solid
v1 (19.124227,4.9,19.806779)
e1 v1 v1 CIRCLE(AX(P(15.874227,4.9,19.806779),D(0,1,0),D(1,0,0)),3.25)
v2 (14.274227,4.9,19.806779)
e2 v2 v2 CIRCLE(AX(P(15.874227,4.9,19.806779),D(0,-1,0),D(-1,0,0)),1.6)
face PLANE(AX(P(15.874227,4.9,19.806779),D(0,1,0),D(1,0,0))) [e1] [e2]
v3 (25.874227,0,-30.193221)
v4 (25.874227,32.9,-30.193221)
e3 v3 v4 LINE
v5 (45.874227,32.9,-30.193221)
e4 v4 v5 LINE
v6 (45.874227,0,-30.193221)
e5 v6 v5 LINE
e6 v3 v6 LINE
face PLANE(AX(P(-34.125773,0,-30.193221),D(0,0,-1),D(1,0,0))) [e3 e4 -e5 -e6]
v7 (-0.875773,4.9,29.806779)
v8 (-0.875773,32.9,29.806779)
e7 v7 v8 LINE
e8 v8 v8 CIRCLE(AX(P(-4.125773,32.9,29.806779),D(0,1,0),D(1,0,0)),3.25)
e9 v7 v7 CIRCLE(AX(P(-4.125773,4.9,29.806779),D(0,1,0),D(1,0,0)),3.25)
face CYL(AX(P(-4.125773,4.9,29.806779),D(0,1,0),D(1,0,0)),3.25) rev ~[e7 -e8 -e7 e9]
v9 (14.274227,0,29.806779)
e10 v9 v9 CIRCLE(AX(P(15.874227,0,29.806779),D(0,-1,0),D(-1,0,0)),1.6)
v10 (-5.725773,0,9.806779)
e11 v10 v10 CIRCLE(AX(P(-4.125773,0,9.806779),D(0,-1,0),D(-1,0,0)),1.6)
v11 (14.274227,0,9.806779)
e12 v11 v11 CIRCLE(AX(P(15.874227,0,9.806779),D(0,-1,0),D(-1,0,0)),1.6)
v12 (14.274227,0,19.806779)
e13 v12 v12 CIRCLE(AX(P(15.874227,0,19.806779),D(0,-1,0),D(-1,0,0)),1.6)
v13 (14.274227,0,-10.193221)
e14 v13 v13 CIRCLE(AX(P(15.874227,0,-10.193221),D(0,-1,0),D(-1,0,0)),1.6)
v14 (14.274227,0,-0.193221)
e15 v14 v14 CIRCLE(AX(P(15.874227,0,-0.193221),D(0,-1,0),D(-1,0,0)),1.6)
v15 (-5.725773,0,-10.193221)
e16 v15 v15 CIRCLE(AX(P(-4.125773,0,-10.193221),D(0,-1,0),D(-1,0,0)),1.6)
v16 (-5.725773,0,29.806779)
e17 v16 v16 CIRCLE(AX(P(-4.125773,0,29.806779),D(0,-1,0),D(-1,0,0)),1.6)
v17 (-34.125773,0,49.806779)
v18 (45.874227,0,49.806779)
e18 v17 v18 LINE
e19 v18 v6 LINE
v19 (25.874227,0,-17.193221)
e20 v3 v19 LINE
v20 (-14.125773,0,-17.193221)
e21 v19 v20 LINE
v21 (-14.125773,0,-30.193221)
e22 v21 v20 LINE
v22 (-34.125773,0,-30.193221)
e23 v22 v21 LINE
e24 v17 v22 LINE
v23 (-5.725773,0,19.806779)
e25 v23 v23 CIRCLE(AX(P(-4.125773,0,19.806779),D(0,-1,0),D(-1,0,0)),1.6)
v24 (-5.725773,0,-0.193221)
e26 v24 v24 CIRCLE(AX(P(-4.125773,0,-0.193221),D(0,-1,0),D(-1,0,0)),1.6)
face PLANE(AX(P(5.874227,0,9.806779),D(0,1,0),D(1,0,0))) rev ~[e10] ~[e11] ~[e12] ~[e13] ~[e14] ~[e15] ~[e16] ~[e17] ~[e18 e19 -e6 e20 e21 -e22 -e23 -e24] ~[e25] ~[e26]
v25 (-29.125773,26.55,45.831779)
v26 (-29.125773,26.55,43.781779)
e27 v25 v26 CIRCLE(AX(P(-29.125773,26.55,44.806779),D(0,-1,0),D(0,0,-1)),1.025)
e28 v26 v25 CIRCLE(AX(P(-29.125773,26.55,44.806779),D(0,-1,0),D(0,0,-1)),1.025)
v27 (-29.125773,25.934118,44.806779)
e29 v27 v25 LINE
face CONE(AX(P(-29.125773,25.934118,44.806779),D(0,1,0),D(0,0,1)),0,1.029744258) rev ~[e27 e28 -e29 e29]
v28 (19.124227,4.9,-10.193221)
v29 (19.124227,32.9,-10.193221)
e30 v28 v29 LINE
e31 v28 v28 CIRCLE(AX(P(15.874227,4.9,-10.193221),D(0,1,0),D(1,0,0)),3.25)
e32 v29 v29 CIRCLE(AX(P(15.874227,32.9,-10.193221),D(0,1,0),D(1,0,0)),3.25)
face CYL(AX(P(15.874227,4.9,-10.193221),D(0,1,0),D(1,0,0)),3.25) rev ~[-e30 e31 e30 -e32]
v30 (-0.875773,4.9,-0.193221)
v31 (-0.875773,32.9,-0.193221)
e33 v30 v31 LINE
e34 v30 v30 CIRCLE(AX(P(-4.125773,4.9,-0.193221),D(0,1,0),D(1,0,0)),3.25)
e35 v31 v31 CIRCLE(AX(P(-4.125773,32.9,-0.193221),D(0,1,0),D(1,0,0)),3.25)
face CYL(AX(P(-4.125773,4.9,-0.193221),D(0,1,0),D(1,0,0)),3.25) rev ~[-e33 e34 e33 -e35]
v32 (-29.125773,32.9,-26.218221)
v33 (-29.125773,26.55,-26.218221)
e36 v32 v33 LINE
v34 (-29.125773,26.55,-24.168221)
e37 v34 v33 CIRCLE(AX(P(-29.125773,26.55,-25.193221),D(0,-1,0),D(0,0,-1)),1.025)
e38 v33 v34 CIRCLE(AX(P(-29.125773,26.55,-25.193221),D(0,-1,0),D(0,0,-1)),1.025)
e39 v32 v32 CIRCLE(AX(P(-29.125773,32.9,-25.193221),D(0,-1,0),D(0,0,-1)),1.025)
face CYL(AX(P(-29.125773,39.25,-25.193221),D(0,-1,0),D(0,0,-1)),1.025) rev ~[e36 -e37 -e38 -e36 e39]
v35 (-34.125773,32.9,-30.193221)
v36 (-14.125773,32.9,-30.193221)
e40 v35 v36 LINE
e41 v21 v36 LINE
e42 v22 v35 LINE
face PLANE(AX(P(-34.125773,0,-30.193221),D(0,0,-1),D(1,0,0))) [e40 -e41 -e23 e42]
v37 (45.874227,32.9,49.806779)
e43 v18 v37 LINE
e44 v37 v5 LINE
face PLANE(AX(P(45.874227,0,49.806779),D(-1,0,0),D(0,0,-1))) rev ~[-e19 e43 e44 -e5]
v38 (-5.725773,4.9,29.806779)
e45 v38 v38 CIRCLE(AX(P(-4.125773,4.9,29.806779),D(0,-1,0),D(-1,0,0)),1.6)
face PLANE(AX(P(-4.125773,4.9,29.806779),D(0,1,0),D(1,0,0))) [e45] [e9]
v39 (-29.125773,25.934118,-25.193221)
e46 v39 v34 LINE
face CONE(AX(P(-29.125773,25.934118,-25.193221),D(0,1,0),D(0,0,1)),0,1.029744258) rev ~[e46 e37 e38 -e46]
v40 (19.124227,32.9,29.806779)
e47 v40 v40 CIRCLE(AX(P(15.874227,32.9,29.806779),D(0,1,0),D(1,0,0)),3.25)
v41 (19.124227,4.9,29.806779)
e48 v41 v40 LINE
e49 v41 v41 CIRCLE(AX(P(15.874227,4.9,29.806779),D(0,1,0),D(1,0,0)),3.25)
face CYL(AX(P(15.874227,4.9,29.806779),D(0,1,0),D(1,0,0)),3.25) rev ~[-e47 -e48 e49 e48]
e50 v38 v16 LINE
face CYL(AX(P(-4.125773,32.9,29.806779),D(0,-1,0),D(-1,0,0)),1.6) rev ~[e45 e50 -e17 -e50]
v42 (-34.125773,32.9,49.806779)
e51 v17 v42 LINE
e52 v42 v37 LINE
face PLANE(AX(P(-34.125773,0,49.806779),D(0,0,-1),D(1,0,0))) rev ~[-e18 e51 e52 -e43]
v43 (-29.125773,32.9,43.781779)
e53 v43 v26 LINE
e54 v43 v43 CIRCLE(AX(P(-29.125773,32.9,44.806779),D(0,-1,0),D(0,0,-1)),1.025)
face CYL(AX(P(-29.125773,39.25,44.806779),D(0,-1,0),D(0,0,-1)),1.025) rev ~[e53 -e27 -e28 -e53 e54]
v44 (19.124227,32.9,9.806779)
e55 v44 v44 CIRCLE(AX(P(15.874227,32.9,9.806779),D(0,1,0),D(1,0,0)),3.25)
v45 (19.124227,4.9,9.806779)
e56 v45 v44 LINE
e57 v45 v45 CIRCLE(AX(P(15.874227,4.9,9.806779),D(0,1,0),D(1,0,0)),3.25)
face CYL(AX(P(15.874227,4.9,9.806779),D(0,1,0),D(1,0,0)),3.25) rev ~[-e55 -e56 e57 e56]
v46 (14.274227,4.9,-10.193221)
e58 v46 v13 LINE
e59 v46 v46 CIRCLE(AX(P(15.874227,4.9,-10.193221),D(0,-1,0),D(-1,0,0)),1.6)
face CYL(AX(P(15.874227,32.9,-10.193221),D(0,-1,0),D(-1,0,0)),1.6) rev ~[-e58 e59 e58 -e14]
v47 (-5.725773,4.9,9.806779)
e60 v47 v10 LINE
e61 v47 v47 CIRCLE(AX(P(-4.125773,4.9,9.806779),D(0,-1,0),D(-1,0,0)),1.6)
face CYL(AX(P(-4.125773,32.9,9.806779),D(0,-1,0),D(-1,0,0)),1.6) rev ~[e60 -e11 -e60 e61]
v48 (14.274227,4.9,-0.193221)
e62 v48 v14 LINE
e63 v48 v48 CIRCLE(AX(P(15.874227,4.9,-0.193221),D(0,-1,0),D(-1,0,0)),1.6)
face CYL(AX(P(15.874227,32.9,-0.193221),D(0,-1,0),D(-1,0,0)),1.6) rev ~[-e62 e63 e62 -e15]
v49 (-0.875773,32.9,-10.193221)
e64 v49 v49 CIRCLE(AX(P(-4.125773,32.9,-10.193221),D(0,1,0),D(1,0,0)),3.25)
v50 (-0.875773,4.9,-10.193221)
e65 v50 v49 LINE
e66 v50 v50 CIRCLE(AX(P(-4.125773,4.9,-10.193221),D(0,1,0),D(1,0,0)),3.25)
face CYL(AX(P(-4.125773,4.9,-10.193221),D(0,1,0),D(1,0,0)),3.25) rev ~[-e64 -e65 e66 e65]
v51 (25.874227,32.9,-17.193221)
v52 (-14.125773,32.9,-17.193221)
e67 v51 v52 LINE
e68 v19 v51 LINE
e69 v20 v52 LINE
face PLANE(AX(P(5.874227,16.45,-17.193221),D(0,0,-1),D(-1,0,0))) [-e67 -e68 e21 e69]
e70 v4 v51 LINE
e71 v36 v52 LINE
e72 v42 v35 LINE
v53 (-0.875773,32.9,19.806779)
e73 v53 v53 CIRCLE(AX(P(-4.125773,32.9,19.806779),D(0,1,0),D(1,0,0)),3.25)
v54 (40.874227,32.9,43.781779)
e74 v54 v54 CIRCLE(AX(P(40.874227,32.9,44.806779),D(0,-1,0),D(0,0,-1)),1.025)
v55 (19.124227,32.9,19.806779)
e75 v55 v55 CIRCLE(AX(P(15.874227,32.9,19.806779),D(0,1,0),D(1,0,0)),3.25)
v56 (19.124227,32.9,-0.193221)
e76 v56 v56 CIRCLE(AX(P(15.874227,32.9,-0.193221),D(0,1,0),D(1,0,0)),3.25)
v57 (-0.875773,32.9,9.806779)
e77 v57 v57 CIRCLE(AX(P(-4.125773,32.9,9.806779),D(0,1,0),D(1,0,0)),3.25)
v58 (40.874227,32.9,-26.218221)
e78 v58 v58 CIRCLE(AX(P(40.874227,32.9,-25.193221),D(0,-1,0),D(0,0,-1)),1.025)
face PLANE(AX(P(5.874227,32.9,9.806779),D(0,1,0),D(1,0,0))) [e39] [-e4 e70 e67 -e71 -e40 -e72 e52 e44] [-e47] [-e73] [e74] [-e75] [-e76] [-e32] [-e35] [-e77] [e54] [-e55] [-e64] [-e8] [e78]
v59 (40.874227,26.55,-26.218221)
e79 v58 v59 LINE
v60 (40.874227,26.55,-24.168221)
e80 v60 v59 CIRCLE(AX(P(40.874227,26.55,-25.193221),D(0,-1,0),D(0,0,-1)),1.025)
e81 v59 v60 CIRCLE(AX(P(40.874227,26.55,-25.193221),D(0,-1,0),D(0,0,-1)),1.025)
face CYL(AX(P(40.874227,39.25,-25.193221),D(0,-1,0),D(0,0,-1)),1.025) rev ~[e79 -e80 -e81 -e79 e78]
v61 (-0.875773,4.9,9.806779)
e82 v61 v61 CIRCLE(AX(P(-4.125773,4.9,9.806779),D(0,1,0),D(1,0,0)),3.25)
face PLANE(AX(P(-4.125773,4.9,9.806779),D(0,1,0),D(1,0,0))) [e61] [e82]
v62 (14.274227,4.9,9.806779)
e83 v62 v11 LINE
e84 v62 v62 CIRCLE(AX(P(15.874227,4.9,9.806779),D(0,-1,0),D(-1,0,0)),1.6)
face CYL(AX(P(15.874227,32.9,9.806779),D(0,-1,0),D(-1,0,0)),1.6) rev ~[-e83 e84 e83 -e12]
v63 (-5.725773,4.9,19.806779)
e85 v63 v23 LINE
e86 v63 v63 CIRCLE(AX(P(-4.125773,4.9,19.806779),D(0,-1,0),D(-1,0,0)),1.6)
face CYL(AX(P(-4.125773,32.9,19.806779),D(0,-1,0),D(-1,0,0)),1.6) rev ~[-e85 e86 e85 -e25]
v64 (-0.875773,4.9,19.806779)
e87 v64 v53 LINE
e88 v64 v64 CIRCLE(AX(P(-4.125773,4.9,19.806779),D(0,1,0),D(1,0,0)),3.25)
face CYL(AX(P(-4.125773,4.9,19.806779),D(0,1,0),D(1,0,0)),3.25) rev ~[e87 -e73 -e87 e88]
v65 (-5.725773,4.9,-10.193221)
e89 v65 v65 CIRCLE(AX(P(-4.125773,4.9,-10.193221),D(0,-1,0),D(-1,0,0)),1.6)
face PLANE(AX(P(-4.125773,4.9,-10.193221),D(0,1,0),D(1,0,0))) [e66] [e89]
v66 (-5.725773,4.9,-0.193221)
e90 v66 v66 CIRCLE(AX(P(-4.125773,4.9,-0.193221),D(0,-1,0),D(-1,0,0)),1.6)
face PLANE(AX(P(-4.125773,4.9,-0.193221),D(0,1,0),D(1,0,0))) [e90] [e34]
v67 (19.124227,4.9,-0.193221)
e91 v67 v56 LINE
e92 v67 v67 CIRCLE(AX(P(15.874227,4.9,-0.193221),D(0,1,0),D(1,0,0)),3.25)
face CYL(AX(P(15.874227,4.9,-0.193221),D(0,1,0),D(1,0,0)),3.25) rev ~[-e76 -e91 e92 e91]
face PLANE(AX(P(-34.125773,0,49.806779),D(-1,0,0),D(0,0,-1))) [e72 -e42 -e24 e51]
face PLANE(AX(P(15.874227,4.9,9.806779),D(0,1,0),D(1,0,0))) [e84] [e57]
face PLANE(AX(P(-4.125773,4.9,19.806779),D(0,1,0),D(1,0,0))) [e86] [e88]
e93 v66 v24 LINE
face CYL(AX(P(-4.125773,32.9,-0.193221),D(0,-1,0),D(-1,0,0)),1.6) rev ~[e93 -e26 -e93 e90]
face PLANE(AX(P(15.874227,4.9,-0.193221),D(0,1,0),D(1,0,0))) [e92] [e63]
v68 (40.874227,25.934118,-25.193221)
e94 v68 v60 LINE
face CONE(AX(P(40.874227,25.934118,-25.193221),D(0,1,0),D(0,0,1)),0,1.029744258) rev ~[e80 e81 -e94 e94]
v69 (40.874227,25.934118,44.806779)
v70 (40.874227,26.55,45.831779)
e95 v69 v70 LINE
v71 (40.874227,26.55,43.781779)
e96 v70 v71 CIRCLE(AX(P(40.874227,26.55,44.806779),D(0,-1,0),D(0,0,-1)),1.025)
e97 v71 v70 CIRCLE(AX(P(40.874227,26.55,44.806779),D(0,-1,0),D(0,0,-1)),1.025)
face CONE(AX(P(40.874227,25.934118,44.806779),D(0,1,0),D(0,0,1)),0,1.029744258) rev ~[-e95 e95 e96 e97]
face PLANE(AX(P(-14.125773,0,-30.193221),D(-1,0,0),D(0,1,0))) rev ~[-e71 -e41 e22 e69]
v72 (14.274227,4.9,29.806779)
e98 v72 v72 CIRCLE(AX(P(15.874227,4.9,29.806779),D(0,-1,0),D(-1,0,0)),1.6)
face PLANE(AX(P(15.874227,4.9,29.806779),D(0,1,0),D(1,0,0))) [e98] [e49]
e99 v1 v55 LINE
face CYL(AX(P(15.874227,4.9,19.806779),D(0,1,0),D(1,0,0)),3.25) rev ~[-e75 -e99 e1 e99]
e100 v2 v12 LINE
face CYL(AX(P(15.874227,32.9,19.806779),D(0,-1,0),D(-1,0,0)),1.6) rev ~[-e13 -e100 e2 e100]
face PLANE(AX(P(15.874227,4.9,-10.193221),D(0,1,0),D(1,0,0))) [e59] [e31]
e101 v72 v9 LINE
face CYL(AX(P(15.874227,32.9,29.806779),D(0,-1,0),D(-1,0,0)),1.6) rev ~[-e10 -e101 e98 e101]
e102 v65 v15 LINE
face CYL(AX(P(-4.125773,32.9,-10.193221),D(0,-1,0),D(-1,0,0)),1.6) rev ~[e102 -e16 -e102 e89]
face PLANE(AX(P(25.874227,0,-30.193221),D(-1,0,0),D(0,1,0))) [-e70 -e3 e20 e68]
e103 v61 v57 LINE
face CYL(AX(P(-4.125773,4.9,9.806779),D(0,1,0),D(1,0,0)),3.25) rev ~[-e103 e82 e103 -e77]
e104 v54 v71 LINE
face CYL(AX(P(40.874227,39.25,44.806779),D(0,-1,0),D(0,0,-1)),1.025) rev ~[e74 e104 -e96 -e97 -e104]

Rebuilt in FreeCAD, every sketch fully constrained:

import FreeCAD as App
import Part
import Sketcher
from FreeCAD import Vector
Q = App.Units.Quantity


def add_polygon(sketch, points):
    """Adds a closed chain of lines whose ends are joined by coincident constraints."""
    first, n = sketch.GeometryCount, len(points)
    for a, b in zip(points, points[1:] + points[:1]):
        sketch.addGeometry(Part.LineSegment(App.Vector(*a, 0), App.Vector(*b, 0)), False)
    for i in range(n):
        sketch.addConstraint(Sketcher.Constraint("Coincident", first + i, 2, first + (i + 1) % n, 1))

doc = App.newDocument("Part")
body = doc.addObject("PartDesign::Body", "Body")

# Sketch on XZ plane
sketch1 = doc.addObject("Sketcher::SketchObject", "Sketch")
body.addObject(sketch1)
sketch1.AttachmentSupport = (doc.XZ_Plane, [""])
sketch1.MapMode = "FlatFace"
add_polygon(sketch1, [(-34, -30), (-34, 50), (46, 50), (46, -30)])  # lines 0-3
sketch1.addConstraint([
    Sketcher.Constraint("Vertical", 0),
    Sketcher.Constraint("Horizontal", 1),
    Sketcher.Constraint("Vertical", 2),
    Sketcher.Constraint("Horizontal", 3),
    Sketcher.Constraint("Equal", 3, 0),
    Sketcher.Constraint("DistanceX", 1, 1, 1, 2, Q("80 mm")),
    Sketcher.Constraint("DistanceY", -1, 1, 0, 2, Q("49.806779 mm")),
    Sketcher.Constraint("DistanceX", 0, 2, -1, 1, Q("34.125773 mm")),
])
pad1 = doc.addObject("PartDesign::Pad", "Pad")
body.addObject(pad1)
pad1.Profile = sketch1
pad1.Length = 32.9
pad1.Reversed = True

# Sketch on XZ plane
sketch2 = doc.addObject("Sketcher::SketchObject", "Sketch001")
body.addObject(sketch2)
sketch2.AttachmentSupport = (doc.XZ_Plane, [""])
sketch2.MapMode = "FlatFace"
sketch2.AttachmentOffset = App.Placement(Vector(0, 0, -32.9), App.Rotation())
sketch2.addGeometry([
    Part.Circle(Vector(-29.1, -25.2, 0), Vector(0, 0, 1), 1),
    Part.Circle(Vector(40.9, -25.2, 0), Vector(0, 0, 1), 1),
    Part.Circle(Vector(40.9, 44.8, 0), Vector(0, 0, 1), 1),
    Part.Circle(Vector(-29.1, 44.8, 0), Vector(0, 0, 1), 1),
], False)
sketch2.addConstraint([
    Sketcher.Constraint("Equal", 0, 1),
    Sketcher.Constraint("Equal", 1, 2),
    Sketcher.Constraint("Equal", 2, 3),
    Sketcher.Constraint("Horizontal", 0, 3, 1, 3),
    Sketcher.Constraint("Horizontal", 2, 3, 3, 3),
    Sketcher.Constraint("Vertical", 1, 3, 2, 3),
    Sketcher.Constraint("Vertical", 0, 3, 3, 3),
    Sketcher.Constraint("Diameter", 0, Q("2.05 mm")),
    Sketcher.Constraint("DistanceX", 0, 3, 1, 3, Q("70 mm")),
    Sketcher.Constraint("DistanceY", 1, 3, 2, 3, Q("70 mm")),
    Sketcher.Constraint("DistanceY", 0, 3, -1, 1, Q("25.193221 mm")),
    Sketcher.Constraint("DistanceX", 0, 3, -1, 1, Q("29.125773 mm")),
])
doc.recompute()
hole = doc.addObject("PartDesign::Hole", "Hole")
body.addObject(hole)
hole.Profile = sketch2
hole.ThreadType = "None"
hole.Diameter = 2.05
hole.DepthType = "Dimension"
hole.Depth = 6.35
hole.DrillPoint = "Angled"
hole.DrillPointAngle = 118
hole.Reversed = True

# Sketch on XZ plane
sketch3 = doc.addObject("Sketcher::SketchObject", "Sketch002")
body.addObject(sketch3)
sketch3.AttachmentSupport = (doc.XZ_Plane, [""])
sketch3.MapMode = "FlatFace"
sketch3.AttachmentOffset = App.Placement(Vector(0, 0, -32.9), App.Rotation())
sketch3.addGeometry([
    Part.Circle(Vector(15.9, 29.8, 0), Vector(0, 0, 1), 1.6),  # 0
    Part.Circle(Vector(-4.1, 29.8, 0), Vector(0, 0, 1), 1.6),  # 1
    Part.Circle(Vector(-4.1, 19.8, 0), Vector(0, 0, 1), 1.6),  # 2
    Part.Circle(Vector(-4.1, 9.8, 0), Vector(0, 0, 1), 1.6),  # 3
    Part.Circle(Vector(-4.1, -0.2, 0), Vector(0, 0, 1), 1.6),  # 4
    Part.Circle(Vector(-4.1, -10.2, 0), Vector(0, 0, 1), 1.6),  # 5
    Part.Circle(Vector(15.9, 19.8, 0), Vector(0, 0, 1), 1.6),  # 6
    Part.Circle(Vector(15.9, 9.8, 0), Vector(0, 0, 1), 1.6),  # 7
    Part.Circle(Vector(15.9, -0.2, 0), Vector(0, 0, 1), 1.6),  # 8
    Part.Circle(Vector(15.9, -10.2, 0), Vector(0, 0, 1), 1.6),  # 9
], False)
sketch3.addConstraint([
    Sketcher.Constraint("Equal", 0, 1),
    Sketcher.Constraint("Equal", 1, 2),
    Sketcher.Constraint("Equal", 2, 3),
    Sketcher.Constraint("Equal", 3, 4),
    Sketcher.Constraint("Equal", 4, 5),
    Sketcher.Constraint("Equal", 5, 6),
    Sketcher.Constraint("Equal", 6, 7),
    Sketcher.Constraint("Equal", 7, 8),
    Sketcher.Constraint("Equal", 8, 9),
    Sketcher.Constraint("Horizontal", 0, 3, 1, 3),
    Sketcher.Constraint("Horizontal", 2, 3, 6, 3),
    Sketcher.Constraint("Horizontal", 3, 3, 7, 3),
    Sketcher.Constraint("Horizontal", 4, 3, 8, 3),
    Sketcher.Constraint("Horizontal", 5, 3, 9, 3),
    Sketcher.Constraint("Vertical", 1, 3, 2, 3),
    Sketcher.Constraint("Vertical", 2, 3, 3, 3),
    Sketcher.Constraint("Vertical", 3, 3, 4, 3),
    Sketcher.Constraint("Vertical", 4, 3, 5, 3),
    Sketcher.Constraint("Vertical", 0, 3, 6, 3),
    Sketcher.Constraint("Vertical", 6, 3, 7, 3),
    Sketcher.Constraint("Vertical", 7, 3, 8, 3),
    Sketcher.Constraint("Vertical", 8, 3, 9, 3),
    Sketcher.Constraint("Diameter", 0, Q("3.2 mm")),
    Sketcher.Constraint("DistanceX", 1, 3, 0, 3, Q("20 mm")),
    Sketcher.Constraint("DistanceY", 2, 3, 1, 3, Q("10 mm")),
    Sketcher.Constraint("DistanceY", 3, 3, 2, 3, Q("10 mm")),
    Sketcher.Constraint("DistanceY", 4, 3, 3, 3, Q("10 mm")),
    Sketcher.Constraint("DistanceY", 5, 3, 4, 3, Q("10 mm")),
    Sketcher.Constraint("DistanceY", -1, 1, 0, 3, Q("29.806779 mm")),
    Sketcher.Constraint("DistanceX", -1, 1, 0, 3, Q("15.874227 mm")),
])
doc.recompute()
hole2 = doc.addObject("PartDesign::Hole", "Hole001")
body.addObject(hole2)
hole2.Profile = sketch3
hole2.ThreadType = "None"
hole2.Diameter = 3.2
hole2.DepthType = "ThroughAll"
hole2.HoleCutType = "Counterbore"
hole2.HoleCutDiameter = 6.5
hole2.HoleCutDepth = 28
hole2.Reversed = True

# Sketch on XY plane
sketch4 = doc.addObject("Sketcher::SketchObject", "Sketch003")
body.addObject(sketch4)
sketch4.AttachmentSupport = (doc.XY_Plane, [""])
sketch4.MapMode = "FlatFace"
sketch4.AttachmentOffset = App.Placement(Vector(0, 0, -30.193221), App.Rotation())
add_polygon(sketch4, [(26, 33), (26, 0), (-14, 0), (-14, 33)])  # lines 0-3
sketch4.addConstraint([
    Sketcher.Constraint("Vertical", 0),
    Sketcher.Constraint("Horizontal", 1),
    Sketcher.Constraint("Vertical", 2),
    Sketcher.Constraint("Horizontal", 3),
    Sketcher.Constraint("PointOnObject", 0, 2, -1),
    Sketcher.Constraint("DistanceX", 1, 2, 1, 1, Q("40 mm")),
    Sketcher.Constraint("DistanceY", 0, 2, 0, 1, Q("32.9 mm")),
    Sketcher.Constraint("DistanceX", -1, 1, 0, 2, Q("25.874227 mm")),
])
pocket1 = doc.addObject("PartDesign::Pocket", "Pocket")
body.addObject(pocket1)
pocket1.Profile = sketch4
pocket1.Length = 13
pocket1.Reversed = True

doc.recompute()
